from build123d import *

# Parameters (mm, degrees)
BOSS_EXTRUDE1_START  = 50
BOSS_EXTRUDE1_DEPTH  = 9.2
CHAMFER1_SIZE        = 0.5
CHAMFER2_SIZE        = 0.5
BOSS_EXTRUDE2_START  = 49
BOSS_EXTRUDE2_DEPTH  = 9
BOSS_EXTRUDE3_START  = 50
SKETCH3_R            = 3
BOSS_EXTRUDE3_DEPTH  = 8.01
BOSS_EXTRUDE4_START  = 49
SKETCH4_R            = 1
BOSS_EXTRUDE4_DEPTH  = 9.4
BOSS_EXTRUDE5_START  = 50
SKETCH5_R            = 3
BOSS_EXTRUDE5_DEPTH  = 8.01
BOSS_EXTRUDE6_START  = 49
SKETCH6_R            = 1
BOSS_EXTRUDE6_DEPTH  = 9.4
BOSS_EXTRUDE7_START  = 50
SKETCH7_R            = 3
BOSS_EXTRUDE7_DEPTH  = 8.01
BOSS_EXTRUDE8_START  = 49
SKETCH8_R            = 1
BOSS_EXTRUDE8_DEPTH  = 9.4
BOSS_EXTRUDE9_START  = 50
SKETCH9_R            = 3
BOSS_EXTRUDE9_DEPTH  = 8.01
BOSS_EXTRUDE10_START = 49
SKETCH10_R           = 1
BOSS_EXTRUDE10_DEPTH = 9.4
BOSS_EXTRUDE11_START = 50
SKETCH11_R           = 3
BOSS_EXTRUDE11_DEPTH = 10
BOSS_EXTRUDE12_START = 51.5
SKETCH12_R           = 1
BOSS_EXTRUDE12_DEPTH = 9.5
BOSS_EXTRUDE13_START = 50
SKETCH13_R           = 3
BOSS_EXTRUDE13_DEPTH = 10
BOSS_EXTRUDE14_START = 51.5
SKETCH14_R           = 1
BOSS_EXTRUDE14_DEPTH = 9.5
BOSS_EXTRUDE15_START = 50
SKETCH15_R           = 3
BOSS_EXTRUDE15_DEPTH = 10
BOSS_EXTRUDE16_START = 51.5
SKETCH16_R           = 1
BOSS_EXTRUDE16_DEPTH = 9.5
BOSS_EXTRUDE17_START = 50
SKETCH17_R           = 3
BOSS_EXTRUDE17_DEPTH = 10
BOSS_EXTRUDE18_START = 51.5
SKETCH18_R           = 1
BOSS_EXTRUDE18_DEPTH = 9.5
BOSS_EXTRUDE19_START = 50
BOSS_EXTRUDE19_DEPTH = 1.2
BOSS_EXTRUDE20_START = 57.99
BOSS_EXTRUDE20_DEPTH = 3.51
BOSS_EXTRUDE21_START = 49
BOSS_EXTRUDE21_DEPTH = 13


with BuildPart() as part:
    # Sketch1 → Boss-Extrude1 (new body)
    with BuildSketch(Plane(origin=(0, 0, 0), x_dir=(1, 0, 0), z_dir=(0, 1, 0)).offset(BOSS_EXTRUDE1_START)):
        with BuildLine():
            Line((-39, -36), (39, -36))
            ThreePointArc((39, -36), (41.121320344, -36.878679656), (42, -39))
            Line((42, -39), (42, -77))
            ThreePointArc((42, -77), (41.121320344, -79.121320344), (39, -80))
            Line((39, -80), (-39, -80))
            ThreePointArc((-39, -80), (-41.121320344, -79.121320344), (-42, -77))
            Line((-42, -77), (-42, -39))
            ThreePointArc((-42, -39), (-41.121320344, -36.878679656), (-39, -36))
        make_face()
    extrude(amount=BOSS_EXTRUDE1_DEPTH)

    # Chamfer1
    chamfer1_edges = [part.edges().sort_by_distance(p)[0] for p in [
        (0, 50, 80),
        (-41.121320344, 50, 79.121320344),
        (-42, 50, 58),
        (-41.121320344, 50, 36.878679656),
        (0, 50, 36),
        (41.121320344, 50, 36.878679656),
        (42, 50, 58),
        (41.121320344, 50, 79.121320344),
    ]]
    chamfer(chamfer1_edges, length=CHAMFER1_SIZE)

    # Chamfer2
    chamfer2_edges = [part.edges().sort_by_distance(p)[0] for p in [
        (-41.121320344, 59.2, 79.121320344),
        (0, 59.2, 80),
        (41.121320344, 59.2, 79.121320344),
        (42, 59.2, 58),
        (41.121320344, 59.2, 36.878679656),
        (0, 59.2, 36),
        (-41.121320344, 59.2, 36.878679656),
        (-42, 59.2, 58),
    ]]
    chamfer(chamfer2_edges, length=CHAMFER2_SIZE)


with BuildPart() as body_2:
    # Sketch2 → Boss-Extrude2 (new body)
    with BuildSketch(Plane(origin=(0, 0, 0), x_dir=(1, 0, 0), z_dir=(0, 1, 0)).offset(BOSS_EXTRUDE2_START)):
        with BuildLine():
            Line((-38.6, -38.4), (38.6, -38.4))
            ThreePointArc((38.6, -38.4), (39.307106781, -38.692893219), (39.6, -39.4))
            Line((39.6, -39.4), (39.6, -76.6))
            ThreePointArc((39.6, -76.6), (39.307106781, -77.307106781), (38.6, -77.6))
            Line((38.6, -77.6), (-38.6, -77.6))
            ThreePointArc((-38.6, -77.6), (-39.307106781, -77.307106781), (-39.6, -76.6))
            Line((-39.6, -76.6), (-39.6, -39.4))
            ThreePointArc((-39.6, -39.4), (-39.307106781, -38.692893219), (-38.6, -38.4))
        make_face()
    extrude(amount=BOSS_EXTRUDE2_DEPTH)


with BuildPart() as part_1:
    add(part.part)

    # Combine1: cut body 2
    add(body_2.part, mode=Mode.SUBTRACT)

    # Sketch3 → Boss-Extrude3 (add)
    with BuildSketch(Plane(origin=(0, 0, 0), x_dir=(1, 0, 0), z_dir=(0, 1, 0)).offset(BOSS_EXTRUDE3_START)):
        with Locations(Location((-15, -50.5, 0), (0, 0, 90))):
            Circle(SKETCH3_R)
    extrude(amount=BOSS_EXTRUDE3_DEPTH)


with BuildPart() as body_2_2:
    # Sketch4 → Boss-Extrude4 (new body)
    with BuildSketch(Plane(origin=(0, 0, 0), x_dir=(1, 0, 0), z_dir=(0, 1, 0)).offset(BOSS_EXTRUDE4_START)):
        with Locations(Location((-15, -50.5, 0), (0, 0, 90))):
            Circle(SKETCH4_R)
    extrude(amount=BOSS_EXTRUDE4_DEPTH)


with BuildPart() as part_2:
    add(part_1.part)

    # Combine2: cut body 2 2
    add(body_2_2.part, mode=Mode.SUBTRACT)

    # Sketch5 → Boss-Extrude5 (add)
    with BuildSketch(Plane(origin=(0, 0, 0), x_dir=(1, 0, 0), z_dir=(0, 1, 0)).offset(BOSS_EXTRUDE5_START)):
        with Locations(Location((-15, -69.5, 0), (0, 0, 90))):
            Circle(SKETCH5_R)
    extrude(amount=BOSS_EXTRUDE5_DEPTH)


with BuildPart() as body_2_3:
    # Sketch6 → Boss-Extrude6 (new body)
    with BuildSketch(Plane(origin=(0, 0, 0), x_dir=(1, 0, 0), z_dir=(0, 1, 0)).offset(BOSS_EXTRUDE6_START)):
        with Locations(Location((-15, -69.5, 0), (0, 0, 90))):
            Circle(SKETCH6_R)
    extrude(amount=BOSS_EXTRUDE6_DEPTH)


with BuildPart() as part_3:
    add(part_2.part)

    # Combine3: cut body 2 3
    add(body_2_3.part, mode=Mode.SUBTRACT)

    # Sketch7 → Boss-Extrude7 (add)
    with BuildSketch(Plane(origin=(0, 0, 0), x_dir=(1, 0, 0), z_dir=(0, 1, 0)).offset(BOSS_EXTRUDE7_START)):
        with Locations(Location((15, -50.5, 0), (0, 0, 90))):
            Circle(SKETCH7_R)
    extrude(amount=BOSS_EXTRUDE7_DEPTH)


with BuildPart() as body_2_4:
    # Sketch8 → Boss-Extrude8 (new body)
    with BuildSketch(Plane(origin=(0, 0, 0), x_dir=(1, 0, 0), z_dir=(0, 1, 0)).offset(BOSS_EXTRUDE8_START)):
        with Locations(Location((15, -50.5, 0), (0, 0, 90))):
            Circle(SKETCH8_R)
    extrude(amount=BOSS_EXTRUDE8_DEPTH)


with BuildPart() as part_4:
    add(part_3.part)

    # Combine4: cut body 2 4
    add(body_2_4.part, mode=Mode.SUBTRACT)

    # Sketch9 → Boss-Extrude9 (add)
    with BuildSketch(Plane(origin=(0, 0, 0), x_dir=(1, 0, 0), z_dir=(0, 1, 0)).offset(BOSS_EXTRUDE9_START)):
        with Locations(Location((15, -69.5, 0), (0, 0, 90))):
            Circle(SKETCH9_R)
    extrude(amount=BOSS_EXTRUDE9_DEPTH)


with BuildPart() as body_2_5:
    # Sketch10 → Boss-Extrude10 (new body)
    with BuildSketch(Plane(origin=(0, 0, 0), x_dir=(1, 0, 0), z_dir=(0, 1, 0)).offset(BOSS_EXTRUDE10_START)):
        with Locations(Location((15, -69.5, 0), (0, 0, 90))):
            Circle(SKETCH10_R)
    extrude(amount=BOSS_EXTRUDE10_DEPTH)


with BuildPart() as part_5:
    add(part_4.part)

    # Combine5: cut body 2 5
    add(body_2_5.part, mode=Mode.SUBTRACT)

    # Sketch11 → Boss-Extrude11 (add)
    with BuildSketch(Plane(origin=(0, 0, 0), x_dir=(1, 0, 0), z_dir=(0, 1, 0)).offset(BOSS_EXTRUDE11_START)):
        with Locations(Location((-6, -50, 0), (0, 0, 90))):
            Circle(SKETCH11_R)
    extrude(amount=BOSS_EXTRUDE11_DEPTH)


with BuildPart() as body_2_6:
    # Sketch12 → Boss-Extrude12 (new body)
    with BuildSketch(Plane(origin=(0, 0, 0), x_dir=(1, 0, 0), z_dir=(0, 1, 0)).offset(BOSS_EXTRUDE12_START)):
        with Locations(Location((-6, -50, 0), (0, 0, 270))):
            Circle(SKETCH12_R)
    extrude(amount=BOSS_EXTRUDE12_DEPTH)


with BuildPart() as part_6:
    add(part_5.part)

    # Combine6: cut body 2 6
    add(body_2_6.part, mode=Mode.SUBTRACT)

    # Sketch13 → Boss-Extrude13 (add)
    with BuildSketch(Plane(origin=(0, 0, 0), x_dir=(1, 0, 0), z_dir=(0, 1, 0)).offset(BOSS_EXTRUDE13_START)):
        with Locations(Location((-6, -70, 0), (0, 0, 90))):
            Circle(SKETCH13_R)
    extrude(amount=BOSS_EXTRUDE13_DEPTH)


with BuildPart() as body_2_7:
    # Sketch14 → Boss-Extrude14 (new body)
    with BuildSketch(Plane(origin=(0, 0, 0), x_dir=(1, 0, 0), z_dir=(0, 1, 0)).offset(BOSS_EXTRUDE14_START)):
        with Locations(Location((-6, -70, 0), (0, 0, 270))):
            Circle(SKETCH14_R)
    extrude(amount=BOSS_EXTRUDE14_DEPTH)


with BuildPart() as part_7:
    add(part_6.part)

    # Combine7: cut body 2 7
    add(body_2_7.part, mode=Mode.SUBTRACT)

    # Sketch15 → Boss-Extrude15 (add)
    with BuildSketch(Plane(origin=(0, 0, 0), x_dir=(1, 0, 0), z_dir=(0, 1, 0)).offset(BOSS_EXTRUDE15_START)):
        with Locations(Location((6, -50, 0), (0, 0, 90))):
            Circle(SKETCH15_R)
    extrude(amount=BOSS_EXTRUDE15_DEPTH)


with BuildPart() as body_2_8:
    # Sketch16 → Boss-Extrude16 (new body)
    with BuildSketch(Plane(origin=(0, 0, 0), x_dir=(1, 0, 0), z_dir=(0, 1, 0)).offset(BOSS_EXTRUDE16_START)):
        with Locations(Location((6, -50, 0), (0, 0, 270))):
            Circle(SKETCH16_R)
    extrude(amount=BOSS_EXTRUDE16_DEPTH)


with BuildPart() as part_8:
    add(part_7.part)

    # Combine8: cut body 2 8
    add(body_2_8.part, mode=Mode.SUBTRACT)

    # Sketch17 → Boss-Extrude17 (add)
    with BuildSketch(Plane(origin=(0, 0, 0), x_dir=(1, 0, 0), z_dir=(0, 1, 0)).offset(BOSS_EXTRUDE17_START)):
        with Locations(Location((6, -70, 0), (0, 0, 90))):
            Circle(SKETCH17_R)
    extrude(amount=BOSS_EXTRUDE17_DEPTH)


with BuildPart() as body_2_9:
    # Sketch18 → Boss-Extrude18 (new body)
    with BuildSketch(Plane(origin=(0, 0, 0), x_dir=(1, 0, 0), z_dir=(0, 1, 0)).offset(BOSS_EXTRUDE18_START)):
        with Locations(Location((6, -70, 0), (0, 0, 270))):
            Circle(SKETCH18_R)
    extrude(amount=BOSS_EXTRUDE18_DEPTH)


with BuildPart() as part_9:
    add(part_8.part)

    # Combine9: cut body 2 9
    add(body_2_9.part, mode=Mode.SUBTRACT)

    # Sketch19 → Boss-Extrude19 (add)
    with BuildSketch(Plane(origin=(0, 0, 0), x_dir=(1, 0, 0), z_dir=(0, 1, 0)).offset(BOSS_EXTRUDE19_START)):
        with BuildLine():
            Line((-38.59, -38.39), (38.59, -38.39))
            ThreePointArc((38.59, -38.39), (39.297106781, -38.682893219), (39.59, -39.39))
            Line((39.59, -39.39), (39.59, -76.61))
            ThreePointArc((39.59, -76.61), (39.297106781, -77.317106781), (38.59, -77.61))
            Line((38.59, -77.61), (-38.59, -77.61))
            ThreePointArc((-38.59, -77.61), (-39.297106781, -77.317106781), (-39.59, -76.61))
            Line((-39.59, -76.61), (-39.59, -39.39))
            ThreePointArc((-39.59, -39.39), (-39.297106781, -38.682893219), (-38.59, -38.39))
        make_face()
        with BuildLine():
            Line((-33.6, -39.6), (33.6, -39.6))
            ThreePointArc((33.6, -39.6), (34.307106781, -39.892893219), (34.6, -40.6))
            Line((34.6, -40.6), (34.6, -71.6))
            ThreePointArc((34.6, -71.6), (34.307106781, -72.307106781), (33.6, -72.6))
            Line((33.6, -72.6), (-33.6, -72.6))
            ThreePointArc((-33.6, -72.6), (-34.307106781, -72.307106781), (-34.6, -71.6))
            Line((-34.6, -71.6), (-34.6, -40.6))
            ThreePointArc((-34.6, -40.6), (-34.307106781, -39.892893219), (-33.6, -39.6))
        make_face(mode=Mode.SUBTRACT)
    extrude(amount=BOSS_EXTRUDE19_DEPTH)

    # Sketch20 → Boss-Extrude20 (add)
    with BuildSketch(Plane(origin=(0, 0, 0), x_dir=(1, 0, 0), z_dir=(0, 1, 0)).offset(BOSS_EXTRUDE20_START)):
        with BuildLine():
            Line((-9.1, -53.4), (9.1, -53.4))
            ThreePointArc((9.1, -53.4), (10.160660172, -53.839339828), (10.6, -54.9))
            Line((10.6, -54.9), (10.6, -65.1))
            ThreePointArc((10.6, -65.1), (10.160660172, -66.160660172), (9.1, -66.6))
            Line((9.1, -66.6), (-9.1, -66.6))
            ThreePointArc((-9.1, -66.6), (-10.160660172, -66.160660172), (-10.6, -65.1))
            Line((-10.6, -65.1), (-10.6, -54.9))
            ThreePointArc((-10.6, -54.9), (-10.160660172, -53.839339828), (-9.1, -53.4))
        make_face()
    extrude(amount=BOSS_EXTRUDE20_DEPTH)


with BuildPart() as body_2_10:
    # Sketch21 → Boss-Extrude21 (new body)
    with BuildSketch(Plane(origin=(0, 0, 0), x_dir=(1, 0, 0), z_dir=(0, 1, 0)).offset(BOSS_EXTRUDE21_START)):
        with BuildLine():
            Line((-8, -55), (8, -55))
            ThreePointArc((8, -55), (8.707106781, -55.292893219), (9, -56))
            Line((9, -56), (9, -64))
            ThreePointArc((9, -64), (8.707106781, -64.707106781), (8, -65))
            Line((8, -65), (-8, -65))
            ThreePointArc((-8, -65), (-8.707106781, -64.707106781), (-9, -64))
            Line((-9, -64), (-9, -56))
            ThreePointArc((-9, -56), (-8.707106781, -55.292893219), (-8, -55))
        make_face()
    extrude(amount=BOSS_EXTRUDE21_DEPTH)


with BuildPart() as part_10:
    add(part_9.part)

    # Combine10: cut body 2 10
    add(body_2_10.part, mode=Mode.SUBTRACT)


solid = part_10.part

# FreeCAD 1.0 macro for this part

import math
import FreeCAD as App
import Part
import Sketcher
Q = App.Units.Quantity


def edges_at(feature, points):
    """Names of the edges that pass closest to the given points."""
    edges = feature.Shape.Edges
    near = lambda p: min(range(len(edges)), key=lambda i: edges[i].distToShape(Part.Vertex(*p))[0])
    return sorted({f"Edge{near(p) + 1}" for p in points})

doc = App.newDocument("Part")
body = doc.addObject("PartDesign::Body", "Body")

# Sketch on XZ plane
sketch1 = body.newObject("Sketcher::SketchObject", "Sketch")
sketch1.AttachmentSupport = (doc.getObject("XZ_Plane"), [""])
sketch1.MapMode = "FlatFace"
sketch1.AttachmentOffset = App.Placement(App.Vector(0, 0, -50), App.Rotation())
sketch1.addGeometry(Part.LineSegment(App.Vector(39, 36, 0), App.Vector(-39, 36, 0)), False)
sketch1.addGeometry(Part.ArcOfCircle(Part.Circle(App.Vector(-39, 39, 0), App.Vector(0, 0, 1), 3), math.radians(180), math.radians(270)), False)
sketch1.addGeometry(Part.LineSegment(App.Vector(-42, 39, 0), App.Vector(-42, 77, 0)), False)
sketch1.addGeometry(Part.ArcOfCircle(Part.Circle(App.Vector(-39, 77, 0), App.Vector(0, 0, 1), 3), math.radians(90), math.radians(180)), False)
sketch1.addGeometry(Part.LineSegment(App.Vector(-39, 80, 0), App.Vector(39, 80, 0)), False)
sketch1.addGeometry(Part.ArcOfCircle(Part.Circle(App.Vector(39, 77, 0), App.Vector(0, 0, 1), 3), math.radians(0), math.radians(90)), False)
sketch1.addGeometry(Part.LineSegment(App.Vector(42, 77, 0), App.Vector(42, 39, 0)), False)
sketch1.addGeometry(Part.ArcOfCircle(Part.Circle(App.Vector(39, 39, 0), App.Vector(0, 0, 1), 3), math.radians(-90), math.radians(0)), False)
sketch1.addConstraint(Sketcher.Constraint("Tangent", 0, 2, 1, 2))
sketch1.addConstraint(Sketcher.Constraint("Tangent", 1, 1, 2, 1))
sketch1.addConstraint(Sketcher.Constraint("Tangent", 2, 2, 3, 2))
sketch1.addConstraint(Sketcher.Constraint("Tangent", 3, 1, 4, 1))
sketch1.addConstraint(Sketcher.Constraint("Tangent", 4, 2, 5, 2))
sketch1.addConstraint(Sketcher.Constraint("Tangent", 5, 1, 6, 1))
sketch1.addConstraint(Sketcher.Constraint("Tangent", 6, 2, 7, 2))
sketch1.addConstraint(Sketcher.Constraint("Tangent", 7, 1, 0, 1))
sketch1.addConstraint(Sketcher.Constraint("Horizontal", 0))
sketch1.addConstraint(Sketcher.Constraint("Vertical", 2))
sketch1.addConstraint(Sketcher.Constraint("Horizontal", 4))
sketch1.addConstraint(Sketcher.Constraint("Vertical", 6))
sketch1.addConstraint(Sketcher.Constraint("Equal", 1, 3))
sketch1.addConstraint(Sketcher.Constraint("Equal", 3, 5))
sketch1.addConstraint(Sketcher.Constraint("Equal", 5, 7))
sketch1.addConstraint(Sketcher.Constraint("Radius", 1, Q("3 mm")))
sketch1.addConstraint(Sketcher.Constraint("DistanceX", 0, 2, 0, 1, Q("78 mm")))
sketch1.addConstraint(Sketcher.Constraint("DistanceY", 2, 1, 2, 2, Q("38 mm")))
sketch1.addConstraint(Sketcher.Constraint("DistanceX", 1, 3, -1, 1, Q("39 mm")))
sketch1.addConstraint(Sketcher.Constraint("DistanceY", -1, 1, 1, 3, Q("39 mm")))
pad1 = body.newObject("PartDesign::Pad", "Pad")
pad1.Profile = sketch1
pad1.Length = 9.2
pad1.Reversed = True
doc.recompute()

chamfer = body.newObject("PartDesign::Chamfer", "Chamfer")
chamfer.Base = (pad1, edges_at(pad1, [
    (0, 50, 80),
    (-41.121, 50, 79.121),
    (-42, 50, 58),
    (-41.121, 50, 36.879),
    (0, 50, 36),
    (41.121, 50, 36.879),
    (42, 50, 58),
    (41.121, 50, 79.121),
]))
chamfer.Size = 0.5
doc.recompute()

chamfer2 = body.newObject("PartDesign::Chamfer", "Chamfer001")
chamfer2.Base = (chamfer, edges_at(chamfer, [
    (-41.121, 59.2, 79.121),
    (0, 59.2, 80),
    (41.121, 59.2, 79.121),
    (42, 59.2, 58),
    (41.121, 59.2, 36.879),
    (0, 59.2, 36),
    (-41.121, 59.2, 36.879),
    (-42, 59.2, 58),
]))
chamfer2.Size = 0.5
body2 = doc.addObject("PartDesign::Body", "Body001")

# Sketch on XZ plane
sketch2 = body2.newObject("Sketcher::SketchObject", "Sketch001")
sketch2.AttachmentSupport = (doc.getObject("XZ_Plane001"), [""])
sketch2.MapMode = "FlatFace"
sketch2.AttachmentOffset = App.Placement(App.Vector(0, 0, -49), App.Rotation())
sketch2.addGeometry(Part.LineSegment(App.Vector(38.6, 38.4, 0), App.Vector(-38.6, 38.4, 0)), False)
sketch2.addGeometry(Part.ArcOfCircle(Part.Circle(App.Vector(-38.6, 39.4, 0), App.Vector(0, 0, 1), 1), math.radians(-180), math.radians(-90)), False)
sketch2.addGeometry(Part.LineSegment(App.Vector(-39.6, 39.4, 0), App.Vector(-39.6, 76.6, 0)), False)
sketch2.addGeometry(Part.ArcOfCircle(Part.Circle(App.Vector(-38.6, 76.6, 0), App.Vector(0, 0, 1), 1), math.radians(90), math.radians(180)), False)
sketch2.addGeometry(Part.LineSegment(App.Vector(-38.6, 77.6, 0), App.Vector(38.6, 77.6, 0)), False)
sketch2.addGeometry(Part.ArcOfCircle(Part.Circle(App.Vector(38.6, 76.6, 0), App.Vector(0, 0, 1), 1), math.radians(0), math.radians(90)), False)
sketch2.addGeometry(Part.LineSegment(App.Vector(39.6, 76.6, 0), App.Vector(39.6, 39.4, 0)), False)
sketch2.addGeometry(Part.ArcOfCircle(Part.Circle(App.Vector(38.6, 39.4, 0), App.Vector(0, 0, 1), 1), math.radians(-90), math.radians(0)), False)
sketch2.addConstraint(Sketcher.Constraint("Tangent", 0, 2, 1, 2))
sketch2.addConstraint(Sketcher.Constraint("Tangent", 1, 1, 2, 1))
sketch2.addConstraint(Sketcher.Constraint("Tangent", 2, 2, 3, 2))
sketch2.addConstraint(Sketcher.Constraint("Tangent", 3, 1, 4, 1))
sketch2.addConstraint(Sketcher.Constraint("Tangent", 4, 2, 5, 2))
sketch2.addConstraint(Sketcher.Constraint("Tangent", 5, 1, 6, 1))
sketch2.addConstraint(Sketcher.Constraint("Tangent", 6, 2, 7, 2))
sketch2.addConstraint(Sketcher.Constraint("Tangent", 7, 1, 0, 1))
sketch2.addConstraint(Sketcher.Constraint("Horizontal", 0))
sketch2.addConstraint(Sketcher.Constraint("Vertical", 2))
sketch2.addConstraint(Sketcher.Constraint("Horizontal", 4))
sketch2.addConstraint(Sketcher.Constraint("Vertical", 6))
sketch2.addConstraint(Sketcher.Constraint("Equal", 1, 3))
sketch2.addConstraint(Sketcher.Constraint("Equal", 3, 5))
sketch2.addConstraint(Sketcher.Constraint("Equal", 5, 7))
sketch2.addConstraint(Sketcher.Constraint("Radius", 1, Q("1 mm")))
sketch2.addConstraint(Sketcher.Constraint("DistanceX", 0, 2, 0, 1, Q("77.2 mm")))
sketch2.addConstraint(Sketcher.Constraint("DistanceY", 2, 1, 2, 2, Q("37.2 mm")))
sketch2.addConstraint(Sketcher.Constraint("DistanceX", 1, 3, -1, 1, Q("38.6 mm")))
sketch2.addConstraint(Sketcher.Constraint("DistanceY", -1, 1, 1, 3, Q("39.4 mm")))
pad2 = body2.newObject("PartDesign::Pad", "Pad001")
pad2.Profile = sketch2
pad2.Length = 9
pad2.Reversed = True
doc.recompute()

boolean = body.newObject("PartDesign::Boolean", "Boolean")
boolean.Type = "Cut"
boolean.addObjects([body2])

# Sketch on XZ plane
sketch3 = body.newObject("Sketcher::SketchObject", "Sketch002")
sketch3.AttachmentSupport = (doc.getObject("XZ_Plane"), [""])
sketch3.MapMode = "FlatFace"
sketch3.AttachmentOffset = App.Placement(App.Vector(0, 0, -50), App.Rotation())
sketch3.addGeometry(Part.Circle(App.Vector(-15, 50.5, 0), App.Vector(0, 0, 1), 3), False)
sketch3.addConstraint(Sketcher.Constraint("Diameter", 0, Q("6 mm")))
sketch3.addConstraint(Sketcher.Constraint("DistanceX", 0, 3, -1, 1, Q("15 mm")))
sketch3.addConstraint(Sketcher.Constraint("DistanceY", -1, 1, 0, 3, Q("50.5 mm")))
pad3 = body.newObject("PartDesign::Pad", "Pad002")
pad3.Profile = sketch3
pad3.Length = 8.01
pad3.Reversed = True
body3 = doc.addObject("PartDesign::Body", "Body002")

# Sketch on XZ plane
sketch4 = body3.newObject("Sketcher::SketchObject", "Sketch003")
sketch4.AttachmentSupport = (doc.getObject("XZ_Plane002"), [""])
sketch4.MapMode = "FlatFace"
sketch4.AttachmentOffset = App.Placement(App.Vector(0, 0, -49), App.Rotation())
sketch4.addGeometry(Part.Circle(App.Vector(-15, 50.5, 0), App.Vector(0, 0, 1), 1), False)
sketch4.addConstraint(Sketcher.Constraint("Diameter", 0, Q("2 mm")))
sketch4.addConstraint(Sketcher.Constraint("DistanceX", 0, 3, -1, 1, Q("15 mm")))
sketch4.addConstraint(Sketcher.Constraint("DistanceY", -1, 1, 0, 3, Q("50.5 mm")))
pad4 = body3.newObject("PartDesign::Pad", "Pad003")
pad4.Profile = sketch4
pad4.Length = 9.4
pad4.Reversed = True
doc.recompute()

boolean2 = body.newObject("PartDesign::Boolean", "Boolean001")
boolean2.Type = "Cut"
boolean2.addObjects([body3])

# Sketch on XZ plane
sketch5 = body.newObject("Sketcher::SketchObject", "Sketch004")
sketch5.AttachmentSupport = (doc.getObject("XZ_Plane"), [""])
sketch5.MapMode = "FlatFace"
sketch5.AttachmentOffset = App.Placement(App.Vector(0, 0, -50), App.Rotation())
sketch5.addGeometry(Part.Circle(App.Vector(-15, 69.5, 0), App.Vector(0, 0, 1), 3), False)
sketch5.addConstraint(Sketcher.Constraint("Diameter", 0, Q("6 mm")))
sketch5.addConstraint(Sketcher.Constraint("DistanceX", 0, 3, -1, 1, Q("15 mm")))
sketch5.addConstraint(Sketcher.Constraint("DistanceY", -1, 1, 0, 3, Q("69.5 mm")))
pad5 = body.newObject("PartDesign::Pad", "Pad004")
pad5.Profile = sketch5
pad5.Length = 8.01
pad5.Reversed = True
body4 = doc.addObject("PartDesign::Body", "Body003")

# Sketch on XZ plane
sketch6 = body4.newObject("Sketcher::SketchObject", "Sketch005")
sketch6.AttachmentSupport = (doc.getObject("XZ_Plane003"), [""])
sketch6.MapMode = "FlatFace"
sketch6.AttachmentOffset = App.Placement(App.Vector(0, 0, -49), App.Rotation())
sketch6.addGeometry(Part.Circle(App.Vector(-15, 69.5, 0), App.Vector(0, 0, 1), 1), False)
sketch6.addConstraint(Sketcher.Constraint("Diameter", 0, Q("2 mm")))
sketch6.addConstraint(Sketcher.Constraint("DistanceX", 0, 3, -1, 1, Q("15 mm")))
sketch6.addConstraint(Sketcher.Constraint("DistanceY", -1, 1, 0, 3, Q("69.5 mm")))
pad6 = body4.newObject("PartDesign::Pad", "Pad005")
pad6.Profile = sketch6
pad6.Length = 9.4
pad6.Reversed = True
doc.recompute()

boolean3 = body.newObject("PartDesign::Boolean", "Boolean002")
boolean3.Type = "Cut"
boolean3.addObjects([body4])

# Sketch on XZ plane
sketch7 = body.newObject("Sketcher::SketchObject", "Sketch006")
sketch7.AttachmentSupport = (doc.getObject("XZ_Plane"), [""])
sketch7.MapMode = "FlatFace"
sketch7.AttachmentOffset = App.Placement(App.Vector(0, 0, -50), App.Rotation())
sketch7.addGeometry(Part.Circle(App.Vector(15, 50.5, 0), App.Vector(0, 0, 1), 3), False)
sketch7.addConstraint(Sketcher.Constraint("Diameter", 0, Q("6 mm")))
sketch7.addConstraint(Sketcher.Constraint("DistanceX", -1, 1, 0, 3, Q("15 mm")))
sketch7.addConstraint(Sketcher.Constraint("DistanceY", -1, 1, 0, 3, Q("50.5 mm")))
pad7 = body.newObject("PartDesign::Pad", "Pad006")
pad7.Profile = sketch7
pad7.Length = 8.01
pad7.Reversed = True
body5 = doc.addObject("PartDesign::Body", "Body004")

# Sketch on XZ plane
sketch8 = body5.newObject("Sketcher::SketchObject", "Sketch007")
sketch8.AttachmentSupport = (doc.getObject("XZ_Plane004"), [""])
sketch8.MapMode = "FlatFace"
sketch8.AttachmentOffset = App.Placement(App.Vector(0, 0, -49), App.Rotation())
sketch8.addGeometry(Part.Circle(App.Vector(15, 50.5, 0), App.Vector(0, 0, 1), 1), False)
sketch8.addConstraint(Sketcher.Constraint("Diameter", 0, Q("2 mm")))
sketch8.addConstraint(Sketcher.Constraint("DistanceX", -1, 1, 0, 3, Q("15 mm")))
sketch8.addConstraint(Sketcher.Constraint("DistanceY", -1, 1, 0, 3, Q("50.5 mm")))
pad8 = body5.newObject("PartDesign::Pad", "Pad007")
pad8.Profile = sketch8
pad8.Length = 9.4
pad8.Reversed = True
doc.recompute()

boolean4 = body.newObject("PartDesign::Boolean", "Boolean003")
boolean4.Type = "Cut"
boolean4.addObjects([body5])

# Sketch on XZ plane
sketch9 = body.newObject("Sketcher::SketchObject", "Sketch008")
sketch9.AttachmentSupport = (doc.getObject("XZ_Plane"), [""])
sketch9.MapMode = "FlatFace"
sketch9.AttachmentOffset = App.Placement(App.Vector(0, 0, -50), App.Rotation())
sketch9.addGeometry(Part.Circle(App.Vector(15, 69.5, 0), App.Vector(0, 0, 1), 3), False)
sketch9.addConstraint(Sketcher.Constraint("Diameter", 0, Q("6 mm")))
sketch9.addConstraint(Sketcher.Constraint("DistanceX", -1, 1, 0, 3, Q("15 mm")))
sketch9.addConstraint(Sketcher.Constraint("DistanceY", -1, 1, 0, 3, Q("69.5 mm")))
pad9 = body.newObject("PartDesign::Pad", "Pad008")
pad9.Profile = sketch9
pad9.Length = 8.01
pad9.Reversed = True
body6 = doc.addObject("PartDesign::Body", "Body005")

# Sketch on XZ plane
sketch10 = body6.newObject("Sketcher::SketchObject", "Sketch009")
sketch10.AttachmentSupport = (doc.getObject("XZ_Plane005"), [""])
sketch10.MapMode = "FlatFace"
sketch10.AttachmentOffset = App.Placement(App.Vector(0, 0, -49), App.Rotation())
sketch10.addGeometry(Part.Circle(App.Vector(15, 69.5, 0), App.Vector(0, 0, 1), 1), False)
sketch10.addConstraint(Sketcher.Constraint("Diameter", 0, Q("2 mm")))
sketch10.addConstraint(Sketcher.Constraint("DistanceX", -1, 1, 0, 3, Q("15 mm")))
sketch10.addConstraint(Sketcher.Constraint("DistanceY", -1, 1, 0, 3, Q("69.5 mm")))
pad10 = body6.newObject("PartDesign::Pad", "Pad009")
pad10.Profile = sketch10
pad10.Length = 9.4
pad10.Reversed = True
doc.recompute()

boolean5 = body.newObject("PartDesign::Boolean", "Boolean004")
boolean5.Type = "Cut"
boolean5.addObjects([body6])

# Sketch on XZ plane
sketch11 = body.newObject("Sketcher::SketchObject", "Sketch010")
sketch11.AttachmentSupport = (doc.getObject("XZ_Plane"), [""])
sketch11.MapMode = "FlatFace"
sketch11.AttachmentOffset = App.Placement(App.Vector(0, 0, -50), App.Rotation())
sketch11.addGeometry(Part.Circle(App.Vector(-6, 50, 0), App.Vector(0, 0, 1), 3), False)
sketch11.addConstraint(Sketcher.Constraint("Diameter", 0, Q("6 mm")))
sketch11.addConstraint(Sketcher.Constraint("DistanceX", 0, 3, -1, 1, Q("6 mm")))
sketch11.addConstraint(Sketcher.Constraint("DistanceY", -1, 1, 0, 3, Q("50 mm")))
pad11 = body.newObject("PartDesign::Pad", "Pad010")
pad11.Profile = sketch11
pad11.Length = 10
pad11.Reversed = True
body7 = doc.addObject("PartDesign::Body", "Body006")

# Sketch on XZ plane
sketch12 = body7.newObject("Sketcher::SketchObject", "Sketch011")
sketch12.AttachmentSupport = (doc.getObject("XZ_Plane006"), [""])
sketch12.MapMode = "FlatFace"
sketch12.AttachmentOffset = App.Placement(App.Vector(0, 0, -51.5), App.Rotation())
sketch12.addGeometry(Part.Circle(App.Vector(-6, 50, 0), App.Vector(0, 0, 1), 1), False)
sketch12.addConstraint(Sketcher.Constraint("Diameter", 0, Q("2 mm")))
sketch12.addConstraint(Sketcher.Constraint("DistanceX", 0, 3, -1, 1, Q("6 mm")))
sketch12.addConstraint(Sketcher.Constraint("DistanceY", -1, 1, 0, 3, Q("50 mm")))
pad12 = body7.newObject("PartDesign::Pad", "Pad011")
pad12.Profile = sketch12
pad12.Length = 9.5
pad12.Reversed = True
doc.recompute()

boolean6 = body.newObject("PartDesign::Boolean", "Boolean005")
boolean6.Type = "Cut"
boolean6.addObjects([body7])

# Sketch on XZ plane
sketch13 = body.newObject("Sketcher::SketchObject", "Sketch012")
sketch13.AttachmentSupport = (doc.getObject("XZ_Plane"), [""])
sketch13.MapMode = "FlatFace"
sketch13.AttachmentOffset = App.Placement(App.Vector(0, 0, -50), App.Rotation())
sketch13.addGeometry(Part.Circle(App.Vector(-6, 70, 0), App.Vector(0, 0, 1), 3), False)
sketch13.addConstraint(Sketcher.Constraint("Diameter", 0, Q("6 mm")))
sketch13.addConstraint(Sketcher.Constraint("DistanceX", 0, 3, -1, 1, Q("6 mm")))
sketch13.addConstraint(Sketcher.Constraint("DistanceY", -1, 1, 0, 3, Q("70 mm")))
pad13 = body.newObject("PartDesign::Pad", "Pad012")
pad13.Profile = sketch13
pad13.Length = 10
pad13.Reversed = True
body8 = doc.addObject("PartDesign::Body", "Body007")

# Sketch on XZ plane
sketch14 = body8.newObject("Sketcher::SketchObject", "Sketch013")
sketch14.AttachmentSupport = (doc.getObject("XZ_Plane007"), [""])
sketch14.MapMode = "FlatFace"
sketch14.AttachmentOffset = App.Placement(App.Vector(0, 0, -51.5), App.Rotation())
sketch14.addGeometry(Part.Circle(App.Vector(-6, 70, 0), App.Vector(0, 0, 1), 1), False)
sketch14.addConstraint(Sketcher.Constraint("Diameter", 0, Q("2 mm")))
sketch14.addConstraint(Sketcher.Constraint("DistanceX", 0, 3, -1, 1, Q("6 mm")))
sketch14.addConstraint(Sketcher.Constraint("DistanceY", -1, 1, 0, 3, Q("70 mm")))
pad14 = body8.newObject("PartDesign::Pad", "Pad013")
pad14.Profile = sketch14
pad14.Length = 9.5
pad14.Reversed = True
doc.recompute()

boolean7 = body.newObject("PartDesign::Boolean", "Boolean006")
boolean7.Type = "Cut"
boolean7.addObjects([body8])

# Sketch on XZ plane
sketch15 = body.newObject("Sketcher::SketchObject", "Sketch014")
sketch15.AttachmentSupport = (doc.getObject("XZ_Plane"), [""])
sketch15.MapMode = "FlatFace"
sketch15.AttachmentOffset = App.Placement(App.Vector(0, 0, -50), App.Rotation())
sketch15.addGeometry(Part.Circle(App.Vector(6, 50, 0), App.Vector(0, 0, 1), 3), False)
sketch15.addConstraint(Sketcher.Constraint("Diameter", 0, Q("6 mm")))
sketch15.addConstraint(Sketcher.Constraint("DistanceX", -1, 1, 0, 3, Q("6 mm")))
sketch15.addConstraint(Sketcher.Constraint("DistanceY", -1, 1, 0, 3, Q("50 mm")))
pad15 = body.newObject("PartDesign::Pad", "Pad014")
pad15.Profile = sketch15
pad15.Length = 10
pad15.Reversed = True
body9 = doc.addObject("PartDesign::Body", "Body008")

# Sketch on XZ plane
sketch16 = body9.newObject("Sketcher::SketchObject", "Sketch015")
sketch16.AttachmentSupport = (doc.getObject("XZ_Plane008"), [""])
sketch16.MapMode = "FlatFace"
sketch16.AttachmentOffset = App.Placement(App.Vector(0, 0, -51.5), App.Rotation())
sketch16.addGeometry(Part.Circle(App.Vector(6, 50, 0), App.Vector(0, 0, 1), 1), False)
sketch16.addConstraint(Sketcher.Constraint("Diameter", 0, Q("2 mm")))
sketch16.addConstraint(Sketcher.Constraint("DistanceX", -1, 1, 0, 3, Q("6 mm")))
sketch16.addConstraint(Sketcher.Constraint("DistanceY", -1, 1, 0, 3, Q("50 mm")))
pad16 = body9.newObject("PartDesign::Pad", "Pad015")
pad16.Profile = sketch16
pad16.Length = 9.5
pad16.Reversed = True
doc.recompute()

boolean8 = body.newObject("PartDesign::Boolean", "Boolean007")
boolean8.Type = "Cut"
boolean8.addObjects([body9])

# Sketch on XZ plane
sketch17 = body.newObject("Sketcher::SketchObject", "Sketch016")
sketch17.AttachmentSupport = (doc.getObject("XZ_Plane"), [""])
sketch17.MapMode = "FlatFace"
sketch17.AttachmentOffset = App.Placement(App.Vector(0, 0, -50), App.Rotation())
sketch17.addGeometry(Part.Circle(App.Vector(6, 70, 0), App.Vector(0, 0, 1), 3), False)
sketch17.addConstraint(Sketcher.Constraint("Diameter", 0, Q("6 mm")))
sketch17.addConstraint(Sketcher.Constraint("DistanceX", -1, 1, 0, 3, Q("6 mm")))
sketch17.addConstraint(Sketcher.Constraint("DistanceY", -1, 1, 0, 3, Q("70 mm")))
pad17 = body.newObject("PartDesign::Pad", "Pad016")
pad17.Profile = sketch17
pad17.Length = 10
pad17.Reversed = True
body10 = doc.addObject("PartDesign::Body", "Body009")

# Sketch on XZ plane
sketch18 = body10.newObject("Sketcher::SketchObject", "Sketch017")
sketch18.AttachmentSupport = (doc.getObject("XZ_Plane009"), [""])
sketch18.MapMode = "FlatFace"
sketch18.AttachmentOffset = App.Placement(App.Vector(0, 0, -51.5), App.Rotation())
sketch18.addGeometry(Part.Circle(App.Vector(6, 70, 0), App.Vector(0, 0, 1), 1), False)
sketch18.addConstraint(Sketcher.Constraint("Diameter", 0, Q("2 mm")))
sketch18.addConstraint(Sketcher.Constraint("DistanceX", -1, 1, 0, 3, Q("6 mm")))
sketch18.addConstraint(Sketcher.Constraint("DistanceY", -1, 1, 0, 3, Q("70 mm")))
pad18 = body10.newObject("PartDesign::Pad", "Pad017")
pad18.Profile = sketch18
pad18.Length = 9.5
pad18.Reversed = True
doc.recompute()

boolean9 = body.newObject("PartDesign::Boolean", "Boolean008")
boolean9.Type = "Cut"
boolean9.addObjects([body10])

# Sketch on XZ plane
sketch19 = body.newObject("Sketcher::SketchObject", "Sketch018")
sketch19.AttachmentSupport = (doc.getObject("XZ_Plane"), [""])
sketch19.MapMode = "FlatFace"
sketch19.AttachmentOffset = App.Placement(App.Vector(0, 0, -50), App.Rotation())
sketch19.addGeometry(Part.LineSegment(App.Vector(38.59, 38.39, 0), App.Vector(-38.59, 38.39, 0)), False)
sketch19.addGeometry(Part.ArcOfCircle(Part.Circle(App.Vector(-38.59, 39.39, 0), App.Vector(0, 0, 1), 1), math.radians(-180), math.radians(-90)), False)
sketch19.addGeometry(Part.LineSegment(App.Vector(-39.59, 39.39, 0), App.Vector(-39.59, 76.61, 0)), False)
sketch19.addGeometry(Part.ArcOfCircle(Part.Circle(App.Vector(-38.59, 76.61, 0), App.Vector(0, 0, 1), 1), math.radians(90), math.radians(180)), False)
sketch19.addGeometry(Part.LineSegment(App.Vector(-38.59, 77.61, 0), App.Vector(38.59, 77.61, 0)), False)
sketch19.addGeometry(Part.ArcOfCircle(Part.Circle(App.Vector(38.59, 76.61, 0), App.Vector(0, 0, 1), 1), math.radians(0), math.radians(90)), False)
sketch19.addGeometry(Part.LineSegment(App.Vector(39.59, 76.61, 0), App.Vector(39.59, 39.39, 0)), False)
sketch19.addGeometry(Part.ArcOfCircle(Part.Circle(App.Vector(38.59, 39.39, 0), App.Vector(0, 0, 1), 1), math.radians(-90), math.radians(0)), False)
sketch19.addGeometry(Part.LineSegment(App.Vector(-33.6, 39.6, 0), App.Vector(33.6, 39.6, 0)), False)
sketch19.addGeometry(Part.ArcOfCircle(Part.Circle(App.Vector(33.6, 40.6, 0), App.Vector(0, 0, 1), 1), math.radians(-90), math.radians(0)), False)
sketch19.addGeometry(Part.LineSegment(App.Vector(34.6, 40.6, 0), App.Vector(34.6, 71.6, 0)), False)
sketch19.addGeometry(Part.ArcOfCircle(Part.Circle(App.Vector(33.6, 71.6, 0), App.Vector(0, 0, 1), 1), math.radians(0), math.radians(90)), False)
sketch19.addGeometry(Part.LineSegment(App.Vector(33.6, 72.6, 0), App.Vector(-33.6, 72.6, 0)), False)
sketch19.addGeometry(Part.ArcOfCircle(Part.Circle(App.Vector(-33.6, 71.6, 0), App.Vector(0, 0, 1), 1), math.radians(90), math.radians(180)), False)
sketch19.addGeometry(Part.LineSegment(App.Vector(-34.6, 71.6, 0), App.Vector(-34.6, 40.6, 0)), False)
sketch19.addGeometry(Part.ArcOfCircle(Part.Circle(App.Vector(-33.6, 40.6, 0), App.Vector(0, 0, 1), 1), math.radians(-180), math.radians(-90)), False)
sketch19.addConstraint(Sketcher.Constraint("Tangent", 0, 2, 1, 2))
sketch19.addConstraint(Sketcher.Constraint("Tangent", 1, 1, 2, 1))
sketch19.addConstraint(Sketcher.Constraint("Tangent", 2, 2, 3, 2))
sketch19.addConstraint(Sketcher.Constraint("Tangent", 3, 1, 4, 1))
sketch19.addConstraint(Sketcher.Constraint("Tangent", 4, 2, 5, 2))
sketch19.addConstraint(Sketcher.Constraint("Tangent", 5, 1, 6, 1))
sketch19.addConstraint(Sketcher.Constraint("Tangent", 6, 2, 7, 2))
sketch19.addConstraint(Sketcher.Constraint("Tangent", 7, 1, 0, 1))
sketch19.addConstraint(Sketcher.Constraint("Tangent", 8, 2, 9, 1))
sketch19.addConstraint(Sketcher.Constraint("Tangent", 9, 2, 10, 1))
sketch19.addConstraint(Sketcher.Constraint("Tangent", 10, 2, 11, 1))
sketch19.addConstraint(Sketcher.Constraint("Tangent", 11, 2, 12, 1))
sketch19.addConstraint(Sketcher.Constraint("Tangent", 12, 2, 13, 1))
sketch19.addConstraint(Sketcher.Constraint("Tangent", 13, 2, 14, 1))
sketch19.addConstraint(Sketcher.Constraint("Tangent", 14, 2, 15, 1))
sketch19.addConstraint(Sketcher.Constraint("Tangent", 15, 2, 8, 1))
sketch19.addConstraint(Sketcher.Constraint("Horizontal", 0))
sketch19.addConstraint(Sketcher.Constraint("Vertical", 2))
sketch19.addConstraint(Sketcher.Constraint("Horizontal", 4))
sketch19.addConstraint(Sketcher.Constraint("Vertical", 6))
sketch19.addConstraint(Sketcher.Constraint("Horizontal", 8))
sketch19.addConstraint(Sketcher.Constraint("Vertical", 10))
sketch19.addConstraint(Sketcher.Constraint("Horizontal", 12))
sketch19.addConstraint(Sketcher.Constraint("Vertical", 14))
sketch19.addConstraint(Sketcher.Constraint("Equal", 1, 3))
sketch19.addConstraint(Sketcher.Constraint("Equal", 3, 5))
sketch19.addConstraint(Sketcher.Constraint("Equal", 5, 7))
sketch19.addConstraint(Sketcher.Constraint("Equal", 7, 9))
sketch19.addConstraint(Sketcher.Constraint("Equal", 9, 11))
sketch19.addConstraint(Sketcher.Constraint("Equal", 11, 13))
sketch19.addConstraint(Sketcher.Constraint("Equal", 13, 15))
sketch19.addConstraint(Sketcher.Constraint("Radius", 1, Q("1 mm")))
sketch19.addConstraint(Sketcher.Constraint("DistanceY", 10, 1, 10, 2, Q("31 mm")))
sketch19.addConstraint(Sketcher.Constraint("DistanceX", 8, 1, 8, 2, Q("67.2 mm")))
sketch19.addConstraint(Sketcher.Constraint("DistanceX", 0, 2, 0, 1, Q("77.18 mm")))
sketch19.addConstraint(Sketcher.Constraint("DistanceY", 2, 1, 2, 2, Q("37.22 mm")))
sketch19.addConstraint(Sketcher.Constraint("DistanceX", -1, 1, 9, 3, Q("33.6 mm")))
sketch19.addConstraint(Sketcher.Constraint("DistanceY", -1, 1, 9, 3, Q("40.6 mm")))
sketch19.addConstraint(Sketcher.Constraint("DistanceX", 1, 3, -1, 1, Q("38.59 mm")))
sketch19.addConstraint(Sketcher.Constraint("DistanceY", -1, 1, 1, 3, Q("39.39 mm")))
pad19 = body.newObject("PartDesign::Pad", "Pad018")
pad19.Profile = sketch19
pad19.Length = 1.2
pad19.Reversed = True

# Sketch on XZ plane
sketch20 = body.newObject("Sketcher::SketchObject", "Sketch019")
sketch20.AttachmentSupport = (doc.getObject("XZ_Plane"), [""])
sketch20.MapMode = "FlatFace"
sketch20.AttachmentOffset = App.Placement(App.Vector(0, 0, -57.99), App.Rotation())
sketch20.addGeometry(Part.LineSegment(App.Vector(9.1, 53.4, 0), App.Vector(-9.1, 53.4, 0)), False)
sketch20.addGeometry(Part.ArcOfCircle(Part.Circle(App.Vector(-9.1, 54.9, 0), App.Vector(0, 0, 1), 1.5), math.radians(180), math.radians(270)), False)
sketch20.addGeometry(Part.LineSegment(App.Vector(-10.6, 54.9, 0), App.Vector(-10.6, 65.1, 0)), False)
sketch20.addGeometry(Part.ArcOfCircle(Part.Circle(App.Vector(-9.1, 65.1, 0), App.Vector(0, 0, 1), 1.5), math.radians(90), math.radians(180)), False)
sketch20.addGeometry(Part.LineSegment(App.Vector(-9.1, 66.6, 0), App.Vector(9.1, 66.6, 0)), False)
sketch20.addGeometry(Part.ArcOfCircle(Part.Circle(App.Vector(9.1, 65.1, 0), App.Vector(0, 0, 1), 1.5), math.radians(0), math.radians(90)), False)
sketch20.addGeometry(Part.LineSegment(App.Vector(10.6, 65.1, 0), App.Vector(10.6, 54.9, 0)), False)
sketch20.addGeometry(Part.ArcOfCircle(Part.Circle(App.Vector(9.1, 54.9, 0), App.Vector(0, 0, 1), 1.5), math.radians(-90), math.radians(0)), False)
sketch20.addConstraint(Sketcher.Constraint("Tangent", 0, 2, 1, 2))
sketch20.addConstraint(Sketcher.Constraint("Tangent", 1, 1, 2, 1))
sketch20.addConstraint(Sketcher.Constraint("Tangent", 2, 2, 3, 2))
sketch20.addConstraint(Sketcher.Constraint("Tangent", 3, 1, 4, 1))
sketch20.addConstraint(Sketcher.Constraint("Tangent", 4, 2, 5, 2))
sketch20.addConstraint(Sketcher.Constraint("Tangent", 5, 1, 6, 1))
sketch20.addConstraint(Sketcher.Constraint("Tangent", 6, 2, 7, 2))
sketch20.addConstraint(Sketcher.Constraint("Tangent", 7, 1, 0, 1))
sketch20.addConstraint(Sketcher.Constraint("Horizontal", 0))
sketch20.addConstraint(Sketcher.Constraint("Vertical", 2))
sketch20.addConstraint(Sketcher.Constraint("Horizontal", 4))
sketch20.addConstraint(Sketcher.Constraint("Vertical", 6))
sketch20.addConstraint(Sketcher.Constraint("Equal", 1, 3))
sketch20.addConstraint(Sketcher.Constraint("Equal", 3, 5))
sketch20.addConstraint(Sketcher.Constraint("Equal", 5, 7))
sketch20.addConstraint(Sketcher.Constraint("Radius", 1, Q("1.5 mm")))
sketch20.addConstraint(Sketcher.Constraint("DistanceX", 0, 2, 0, 1, Q("18.2 mm")))
sketch20.addConstraint(Sketcher.Constraint("DistanceY", 2, 1, 2, 2, Q("10.2 mm")))
sketch20.addConstraint(Sketcher.Constraint("DistanceX", 1, 3, -1, 1, Q("9.1 mm")))
sketch20.addConstraint(Sketcher.Constraint("DistanceY", -1, 1, 1, 3, Q("54.9 mm")))
pad20 = body.newObject("PartDesign::Pad", "Pad019")
pad20.Profile = sketch20
pad20.Length = 3.51
pad20.Reversed = True
body11 = doc.addObject("PartDesign::Body", "Body010")

# Sketch on XZ plane
sketch21 = body11.newObject("Sketcher::SketchObject", "Sketch020")
sketch21.AttachmentSupport = (doc.getObject("XZ_Plane010"), [""])
sketch21.MapMode = "FlatFace"
sketch21.AttachmentOffset = App.Placement(App.Vector(0, 0, -49), App.Rotation())
sketch21.addGeometry(Part.LineSegment(App.Vector(8, 55, 0), App.Vector(-8, 55, 0)), False)
sketch21.addGeometry(Part.ArcOfCircle(Part.Circle(App.Vector(-8, 56, 0), App.Vector(0, 0, 1), 1), math.radians(-180), math.radians(-90)), False)
sketch21.addGeometry(Part.LineSegment(App.Vector(-9, 56, 0), App.Vector(-9, 64, 0)), False)
sketch21.addGeometry(Part.ArcOfCircle(Part.Circle(App.Vector(-8, 64, 0), App.Vector(0, 0, 1), 1), math.radians(90), math.radians(180)), False)
sketch21.addGeometry(Part.LineSegment(App.Vector(-8, 65, 0), App.Vector(8, 65, 0)), False)
sketch21.addGeometry(Part.ArcOfCircle(Part.Circle(App.Vector(8, 64, 0), App.Vector(0, 0, 1), 1), math.radians(0), math.radians(90)), False)
sketch21.addGeometry(Part.LineSegment(App.Vector(9, 64, 0), App.Vector(9, 56, 0)), False)
sketch21.addGeometry(Part.ArcOfCircle(Part.Circle(App.Vector(8, 56, 0), App.Vector(0, 0, 1), 1), math.radians(-90), math.radians(0)), False)
sketch21.addConstraint(Sketcher.Constraint("Tangent", 0, 2, 1, 2))
sketch21.addConstraint(Sketcher.Constraint("Tangent", 1, 1, 2, 1))
sketch21.addConstraint(Sketcher.Constraint("Tangent", 2, 2, 3, 2))
sketch21.addConstraint(Sketcher.Constraint("Tangent", 3, 1, 4, 1))
sketch21.addConstraint(Sketcher.Constraint("Tangent", 4, 2, 5, 2))
sketch21.addConstraint(Sketcher.Constraint("Tangent", 5, 1, 6, 1))
sketch21.addConstraint(Sketcher.Constraint("Tangent", 6, 2, 7, 2))
sketch21.addConstraint(Sketcher.Constraint("Tangent", 7, 1, 0, 1))
sketch21.addConstraint(Sketcher.Constraint("Horizontal", 0))
sketch21.addConstraint(Sketcher.Constraint("Vertical", 2))
sketch21.addConstraint(Sketcher.Constraint("Horizontal", 4))
sketch21.addConstraint(Sketcher.Constraint("Vertical", 6))
sketch21.addConstraint(Sketcher.Constraint("Equal", 1, 3))
sketch21.addConstraint(Sketcher.Constraint("Equal", 3, 5))
sketch21.addConstraint(Sketcher.Constraint("Equal", 5, 7))
sketch21.addConstraint(Sketcher.Constraint("Radius", 1, Q("1 mm")))
sketch21.addConstraint(Sketcher.Constraint("DistanceX", 0, 2, 0, 1, Q("16 mm")))
sketch21.addConstraint(Sketcher.Constraint("DistanceY", 2, 1, 2, 2, Q("8 mm")))
sketch21.addConstraint(Sketcher.Constraint("DistanceX", 1, 3, -1, 1, Q("8 mm")))
sketch21.addConstraint(Sketcher.Constraint("DistanceY", -1, 1, 1, 3, Q("56 mm")))
pad21 = body11.newObject("PartDesign::Pad", "Pad020")
pad21.Profile = sketch21
pad21.Length = 13
pad21.Reversed = True
doc.recompute()

boolean10 = body.newObject("PartDesign::Boolean", "Boolean009")
boolean10.Type = "Cut"
boolean10.addObjects([body11])

doc.recompute()
